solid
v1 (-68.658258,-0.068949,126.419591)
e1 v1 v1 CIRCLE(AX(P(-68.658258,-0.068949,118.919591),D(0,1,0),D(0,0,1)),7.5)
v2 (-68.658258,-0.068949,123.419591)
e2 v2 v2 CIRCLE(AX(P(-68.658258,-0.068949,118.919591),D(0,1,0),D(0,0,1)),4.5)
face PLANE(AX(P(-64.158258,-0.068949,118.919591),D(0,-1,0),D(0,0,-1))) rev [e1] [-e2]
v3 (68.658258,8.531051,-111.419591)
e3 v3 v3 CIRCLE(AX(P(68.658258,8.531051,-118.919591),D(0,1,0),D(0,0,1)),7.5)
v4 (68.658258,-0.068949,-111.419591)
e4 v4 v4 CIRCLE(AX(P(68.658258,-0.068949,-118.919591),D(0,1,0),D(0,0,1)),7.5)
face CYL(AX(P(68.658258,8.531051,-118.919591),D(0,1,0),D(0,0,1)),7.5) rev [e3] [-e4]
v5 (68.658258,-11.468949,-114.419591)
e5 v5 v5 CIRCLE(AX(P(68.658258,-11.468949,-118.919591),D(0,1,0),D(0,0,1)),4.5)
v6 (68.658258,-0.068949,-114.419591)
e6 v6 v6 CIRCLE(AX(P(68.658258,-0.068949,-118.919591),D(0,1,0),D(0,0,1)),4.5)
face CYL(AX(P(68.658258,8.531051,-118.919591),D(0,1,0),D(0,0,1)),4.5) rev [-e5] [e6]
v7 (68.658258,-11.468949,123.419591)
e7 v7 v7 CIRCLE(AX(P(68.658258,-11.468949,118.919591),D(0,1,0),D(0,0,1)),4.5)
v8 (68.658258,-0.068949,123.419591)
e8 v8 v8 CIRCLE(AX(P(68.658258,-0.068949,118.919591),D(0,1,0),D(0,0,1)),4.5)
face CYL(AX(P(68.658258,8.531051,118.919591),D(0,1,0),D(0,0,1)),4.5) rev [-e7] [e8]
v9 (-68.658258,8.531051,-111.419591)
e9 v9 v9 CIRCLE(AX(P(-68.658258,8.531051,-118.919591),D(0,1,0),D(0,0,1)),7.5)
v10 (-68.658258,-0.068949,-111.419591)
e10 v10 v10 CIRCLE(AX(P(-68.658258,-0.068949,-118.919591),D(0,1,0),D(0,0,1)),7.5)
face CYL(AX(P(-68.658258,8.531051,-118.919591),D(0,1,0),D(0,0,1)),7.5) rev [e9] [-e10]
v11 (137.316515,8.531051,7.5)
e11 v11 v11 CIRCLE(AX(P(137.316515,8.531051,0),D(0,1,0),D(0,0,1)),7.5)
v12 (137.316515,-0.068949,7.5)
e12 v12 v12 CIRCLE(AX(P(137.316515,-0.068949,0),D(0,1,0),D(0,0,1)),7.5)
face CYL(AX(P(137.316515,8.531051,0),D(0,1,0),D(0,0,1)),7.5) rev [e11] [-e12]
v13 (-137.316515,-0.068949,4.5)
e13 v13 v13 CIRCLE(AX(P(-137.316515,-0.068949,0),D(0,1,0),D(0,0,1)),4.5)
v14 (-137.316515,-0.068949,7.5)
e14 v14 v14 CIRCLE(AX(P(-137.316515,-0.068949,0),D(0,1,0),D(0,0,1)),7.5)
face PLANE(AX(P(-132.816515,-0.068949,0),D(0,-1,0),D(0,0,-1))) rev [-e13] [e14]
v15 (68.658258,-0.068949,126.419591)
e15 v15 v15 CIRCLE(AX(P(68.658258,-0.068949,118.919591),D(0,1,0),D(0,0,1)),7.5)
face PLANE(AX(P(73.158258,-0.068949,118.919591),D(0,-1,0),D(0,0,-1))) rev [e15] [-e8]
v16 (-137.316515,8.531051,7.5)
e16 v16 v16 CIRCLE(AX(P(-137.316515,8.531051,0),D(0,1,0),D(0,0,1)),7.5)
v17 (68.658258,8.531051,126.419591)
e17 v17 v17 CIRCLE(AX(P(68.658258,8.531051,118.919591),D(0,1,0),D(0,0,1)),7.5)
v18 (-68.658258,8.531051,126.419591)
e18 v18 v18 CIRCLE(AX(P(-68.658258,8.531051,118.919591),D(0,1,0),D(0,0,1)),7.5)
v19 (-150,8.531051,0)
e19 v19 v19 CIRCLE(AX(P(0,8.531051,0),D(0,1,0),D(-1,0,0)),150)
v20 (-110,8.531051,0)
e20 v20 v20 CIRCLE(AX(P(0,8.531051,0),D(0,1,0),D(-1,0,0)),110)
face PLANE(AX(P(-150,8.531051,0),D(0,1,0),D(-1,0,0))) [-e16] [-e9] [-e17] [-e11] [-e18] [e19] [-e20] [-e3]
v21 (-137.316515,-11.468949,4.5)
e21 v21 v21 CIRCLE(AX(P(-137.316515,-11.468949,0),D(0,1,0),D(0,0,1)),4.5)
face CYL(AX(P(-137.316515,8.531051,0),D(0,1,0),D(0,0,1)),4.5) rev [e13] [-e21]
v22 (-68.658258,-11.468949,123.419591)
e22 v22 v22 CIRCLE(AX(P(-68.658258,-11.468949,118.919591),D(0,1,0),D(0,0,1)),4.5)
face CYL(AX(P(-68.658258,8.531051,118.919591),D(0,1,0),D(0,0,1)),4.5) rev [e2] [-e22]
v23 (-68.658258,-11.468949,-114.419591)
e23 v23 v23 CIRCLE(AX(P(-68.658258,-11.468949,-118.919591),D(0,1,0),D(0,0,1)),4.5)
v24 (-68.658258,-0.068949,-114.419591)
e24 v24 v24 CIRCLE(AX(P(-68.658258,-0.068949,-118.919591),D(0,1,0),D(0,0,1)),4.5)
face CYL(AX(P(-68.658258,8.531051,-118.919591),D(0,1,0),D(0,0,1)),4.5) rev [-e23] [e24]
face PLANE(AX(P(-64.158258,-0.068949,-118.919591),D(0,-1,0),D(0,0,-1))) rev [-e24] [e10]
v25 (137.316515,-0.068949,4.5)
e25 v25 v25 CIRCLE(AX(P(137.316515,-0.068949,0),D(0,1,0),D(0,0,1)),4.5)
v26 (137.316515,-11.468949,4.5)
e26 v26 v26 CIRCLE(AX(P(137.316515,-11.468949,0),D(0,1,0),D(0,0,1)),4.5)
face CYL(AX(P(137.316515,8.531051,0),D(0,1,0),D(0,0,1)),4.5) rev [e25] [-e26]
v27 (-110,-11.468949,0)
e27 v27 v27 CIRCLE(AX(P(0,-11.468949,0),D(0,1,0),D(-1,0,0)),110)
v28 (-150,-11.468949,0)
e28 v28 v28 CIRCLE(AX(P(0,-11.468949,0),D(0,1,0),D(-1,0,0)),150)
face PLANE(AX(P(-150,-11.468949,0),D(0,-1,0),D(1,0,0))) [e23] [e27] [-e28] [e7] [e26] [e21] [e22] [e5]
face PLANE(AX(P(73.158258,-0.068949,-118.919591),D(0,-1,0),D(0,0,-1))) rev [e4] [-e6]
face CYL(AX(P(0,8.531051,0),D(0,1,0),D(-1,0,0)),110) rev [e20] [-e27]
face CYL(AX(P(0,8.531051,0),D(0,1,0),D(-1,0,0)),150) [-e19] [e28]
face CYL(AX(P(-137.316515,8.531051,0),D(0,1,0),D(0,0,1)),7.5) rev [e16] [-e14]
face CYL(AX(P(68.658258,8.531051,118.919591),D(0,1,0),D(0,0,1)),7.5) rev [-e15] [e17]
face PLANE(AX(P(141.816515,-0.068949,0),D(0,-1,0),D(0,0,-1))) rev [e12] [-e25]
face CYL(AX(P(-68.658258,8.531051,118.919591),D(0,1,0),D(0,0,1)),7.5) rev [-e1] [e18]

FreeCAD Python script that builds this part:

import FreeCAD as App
import Part
import Sketcher
from FreeCAD import Vector


def add_polygon(sketch, points):
    """Adds a closed chain of lines whose ends are joined by coincident constraints."""
    first, n = sketch.GeometryCount, len(points)
    for a, b in zip(points, points[1:] + points[:1]):
        sketch.addGeometry(Part.LineSegment(App.Vector(*a, 0), App.Vector(*b, 0)), False)
    for i in range(n):
        sketch.addConstraint(Sketcher.Constraint("Coincident", first + i, 2, first + (i + 1) % n, 1))

doc = App.newDocument("Part")
body = doc.addObject("PartDesign::Body", "Body")

# Sketch on XY plane
sketch1 = body.newObject("Sketcher::SketchObject", "Sketch")
sketch1.AttachmentSupport = (doc.getObject("XY_Plane"), [""])
sketch1.MapMode = "FlatFace"
add_polygon(sketch1, [(-150, 8.531051), (-150, -11.468949), (-110, -11.468949), (-110, 8.531051)])  # lines 0-3
sketch1.addConstraint([
    Sketcher.Constraint("Vertical", 0),
    Sketcher.Constraint("Horizontal", 1),
    Sketcher.Constraint("Vertical", 2),
    Sketcher.Constraint("Horizontal", 3),
    Sketcher.Constraint("DistanceX", 1, 1, 1, 2, 40.0),
    Sketcher.Constraint("DistanceY", 0, 2, 0, 1, 20.0),
    Sketcher.Constraint("DistanceX", 0, 2, -1, 1, 150.0),
    Sketcher.Constraint("DistanceY", 0, 2, -1, 1, 11.468949),
])
revolution = body.newObject("PartDesign::Revolution", "Revolution")
revolution.Profile = sketch1
revolution.ReferenceAxis = (sketch1, ["V_Axis"])
revolution.Angle = 360

# Sketch on XZ plane
sketch2 = body.newObject("Sketcher::SketchObject", "Sketch001")
sketch2.AttachmentSupport = (doc.getObject("XZ_Plane"), [""])
sketch2.MapMode = "FlatFace"
sketch2.AttachmentOffset = App.Placement(Vector(0, 0, -8.531051), App.Rotation())
sketch2.addGeometry([
    Part.Circle(Vector(-137.316515, 0, 0), Vector(0, 0, 1), 4.5),  # 0
    Part.Circle(Vector(-68.658258, -118.919591, 0), Vector(0, 0, 1), 4.5),  # 1
    Part.Circle(Vector(68.658258, -118.919591, 0), Vector(0, 0, 1), 4.5),  # 2
    Part.Circle(Vector(137.316515, 0, 0), Vector(0, 0, 1), 4.5),  # 3
    Part.Circle(Vector(68.658258, 118.919591, 0), Vector(0, 0, 1), 4.5),  # 4
    Part.Circle(Vector(-68.658258, 118.919591, 0), Vector(0, 0, 1), 4.5),  # 5
], False)
sketch2.addConstraint([
    Sketcher.Constraint("Equal", 0, 1),
    Sketcher.Constraint("Equal", 1, 2),
    Sketcher.Constraint("Equal", 2, 3),
    Sketcher.Constraint("Equal", 3, 4),
    Sketcher.Constraint("Equal", 4, 5),
    Sketcher.Constraint("Symmetric", 0, 3, 3, 3, -1, 1),
    Sketcher.Constraint("Symmetric", 1, 3, 4, 3, -1, 1),
    Sketcher.Constraint("Symmetric", 2, 3, 5, 3, -1, 1),
    Sketcher.Constraint("Symmetric", 1, 3, 2, 3, -2),
    Sketcher.Constraint("PointOnObject", 0, 3, -1),
    Sketcher.Constraint("Diameter", 0, 9.0),
    Sketcher.Constraint("DistanceY", 1, 3, -1, 1, 118.919591),
    Sketcher.Constraint("DistanceX", 0, 3, 3, 3, 274.63303),
    Sketcher.Constraint("DistanceX", 1, 3, -1, 1, 68.658258),
])
doc.recompute()
hole = body.newObject("PartDesign::Hole", "Hole")
hole.Profile = sketch2
hole.ThreadType = "None"
hole.Diameter = 9
hole.DepthType = "ThroughAll"
hole.HoleCutType = "Counterbore"
hole.HoleCutDiameter = 15
hole.HoleCutDepth = 8.6
hole.Reversed = True

doc.recompute()
